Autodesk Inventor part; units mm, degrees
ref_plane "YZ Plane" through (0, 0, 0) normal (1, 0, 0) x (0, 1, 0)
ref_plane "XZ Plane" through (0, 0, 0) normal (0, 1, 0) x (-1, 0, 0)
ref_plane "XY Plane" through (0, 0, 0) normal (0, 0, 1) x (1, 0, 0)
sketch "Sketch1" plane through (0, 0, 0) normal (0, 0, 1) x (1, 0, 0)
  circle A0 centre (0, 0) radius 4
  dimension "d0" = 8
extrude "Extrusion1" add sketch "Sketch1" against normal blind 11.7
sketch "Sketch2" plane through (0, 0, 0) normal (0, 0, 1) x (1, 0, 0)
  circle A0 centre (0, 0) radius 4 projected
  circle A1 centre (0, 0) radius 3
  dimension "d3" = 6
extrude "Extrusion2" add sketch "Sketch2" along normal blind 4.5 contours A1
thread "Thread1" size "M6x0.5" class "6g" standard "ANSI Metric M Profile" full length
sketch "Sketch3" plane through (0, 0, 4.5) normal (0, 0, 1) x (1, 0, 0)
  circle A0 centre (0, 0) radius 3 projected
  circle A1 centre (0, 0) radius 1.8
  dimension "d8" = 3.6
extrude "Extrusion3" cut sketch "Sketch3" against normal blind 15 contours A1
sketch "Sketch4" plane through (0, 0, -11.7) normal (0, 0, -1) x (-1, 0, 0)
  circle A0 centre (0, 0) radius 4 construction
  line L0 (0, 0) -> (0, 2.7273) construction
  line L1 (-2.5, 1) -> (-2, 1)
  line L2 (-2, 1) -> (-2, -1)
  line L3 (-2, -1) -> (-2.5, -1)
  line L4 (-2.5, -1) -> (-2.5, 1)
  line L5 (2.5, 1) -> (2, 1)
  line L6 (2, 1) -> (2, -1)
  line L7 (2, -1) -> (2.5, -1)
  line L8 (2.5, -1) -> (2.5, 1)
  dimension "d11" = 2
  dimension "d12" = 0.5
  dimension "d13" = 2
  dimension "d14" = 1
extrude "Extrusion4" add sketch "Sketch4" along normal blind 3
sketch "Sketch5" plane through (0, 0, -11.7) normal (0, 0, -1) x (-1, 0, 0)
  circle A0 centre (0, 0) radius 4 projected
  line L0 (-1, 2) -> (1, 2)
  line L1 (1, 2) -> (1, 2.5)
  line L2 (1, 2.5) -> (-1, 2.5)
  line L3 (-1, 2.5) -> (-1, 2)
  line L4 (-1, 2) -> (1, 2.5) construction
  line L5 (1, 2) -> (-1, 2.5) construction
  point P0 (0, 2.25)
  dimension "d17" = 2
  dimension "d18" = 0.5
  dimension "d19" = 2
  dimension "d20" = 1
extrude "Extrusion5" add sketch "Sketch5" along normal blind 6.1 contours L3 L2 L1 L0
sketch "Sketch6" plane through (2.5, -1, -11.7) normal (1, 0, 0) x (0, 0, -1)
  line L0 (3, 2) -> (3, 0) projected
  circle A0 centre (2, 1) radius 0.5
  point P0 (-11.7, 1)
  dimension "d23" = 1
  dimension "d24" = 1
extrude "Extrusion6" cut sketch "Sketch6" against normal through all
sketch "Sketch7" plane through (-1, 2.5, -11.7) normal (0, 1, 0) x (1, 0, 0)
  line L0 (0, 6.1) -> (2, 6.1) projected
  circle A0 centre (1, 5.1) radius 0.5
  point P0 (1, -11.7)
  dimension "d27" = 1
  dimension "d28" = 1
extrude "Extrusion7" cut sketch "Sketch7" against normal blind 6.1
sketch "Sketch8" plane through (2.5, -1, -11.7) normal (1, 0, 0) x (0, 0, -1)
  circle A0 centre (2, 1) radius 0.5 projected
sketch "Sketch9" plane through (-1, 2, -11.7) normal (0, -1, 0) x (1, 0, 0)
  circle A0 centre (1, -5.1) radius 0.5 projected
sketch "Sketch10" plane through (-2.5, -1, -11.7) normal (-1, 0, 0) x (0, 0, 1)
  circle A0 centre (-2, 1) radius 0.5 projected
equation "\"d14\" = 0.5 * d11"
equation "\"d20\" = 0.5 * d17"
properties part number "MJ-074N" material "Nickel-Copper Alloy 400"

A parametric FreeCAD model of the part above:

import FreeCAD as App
import Part
import Sketcher

V = App.Vector

doc = App.newDocument("Part")
params = doc.addObject("Spreadsheet::Sheet", "Params")
for row, (alias, value) in enumerate([
    ("sketch1_diameter", "8 mm"),
    ("pad1_length", "11.7 mm"),
    ("sketch2_diameter", "6 mm"),
    ("pad2_length", "4.5 mm"),
    ("sketch3_diameter", "3.6 mm"),
    ("pocket1_length", "15 mm"),
    ("sketch4_height", "2 mm"),
    ("sketch4_width", "0.5 mm"),
    ("pad3_length", "3 mm"),
    ("sketch5_width", "2 mm"),
    ("sketch5_height", "0.5 mm"),
    ("pad4_length", "6.1 mm"),
    ("sketch6_diameter", "1 mm"),
    ("sketch7_diameter", "1 mm"),
    ("pocket3_length", "6.1 mm"),
], start=1):
    params.set(f"A{row}", alias)
    params.set(f"B{row}", "=" + value)
    params.setAlias(f"B{row}", alias)

body = doc.addObject("PartDesign::Body", "Body")

# Sketch on XY plane
sketch1 = body.newObject("Sketcher::SketchObject", "Sketch")
sketch1.AttachmentSupport = (doc.getObject("XY_Plane"), [""])
sketch1.MapMode = "FlatFace"
sketch1.addGeometry(Part.Circle(V(0, 0, 0), V(0, 0, 1), 4), False)
sketch1.addConstraint(Sketcher.Constraint("Coincident", 0, 3, -1, 1))
sketch1.addConstraint(Sketcher.Constraint("Diameter", 0, 8.0))
sketch1.setExpression("Constraints[1]", "Params.sketch1_diameter")
pad1 = body.newObject("PartDesign::Pad", "Pad")
pad1.Profile = sketch1
pad1.setExpression("Length", "Params.pad1_length")
pad1.Reversed = True

# Sketch on XY plane
sketch2 = body.newObject("Sketcher::SketchObject", "Sketch001")
sketch2.AttachmentSupport = (doc.getObject("XY_Plane"), [""])
sketch2.MapMode = "FlatFace"
sketch2.addGeometry(Part.Circle(V(0, 0, 0), V(0, 0, 1), 3), False)
sketch2.addConstraint(Sketcher.Constraint("Coincident", 0, 3, -1, 1))
sketch2.addConstraint(Sketcher.Constraint("Diameter", 0, 6.0))
sketch2.setExpression("Constraints[1]", "Params.sketch2_diameter")
pad2 = body.newObject("PartDesign::Pad", "Pad001")
pad2.Profile = sketch2
pad2.setExpression("Length", "Params.pad2_length")

# Sketch on XY plane
sketch3 = body.newObject("Sketcher::SketchObject", "Sketch002")
sketch3.AttachmentSupport = (doc.getObject("XY_Plane"), [""])
sketch3.MapMode = "FlatFace"
sketch3.AttachmentOffset = App.Placement(V(0, 0, 4.5), App.Rotation())
sketch3.addGeometry(Part.Circle(V(0, 0, 0), V(0, 0, 1), 1.8), False)
sketch3.addConstraint(Sketcher.Constraint("Coincident", 0, 3, -1, 1))
sketch3.addConstraint(Sketcher.Constraint("Diameter", 0, 3.6))
sketch3.setExpression("Constraints[1]", "Params.sketch3_diameter")
pocket1 = body.newObject("PartDesign::Pocket", "Pocket")
pocket1.Profile = sketch3
pocket1.setExpression("Length", "Params.pocket1_length")

# Sketch on XY plane
sketch4 = body.newObject("Sketcher::SketchObject", "Sketch003")
sketch4.AttachmentSupport = (doc.getObject("XY_Plane"), [""])
sketch4.MapMode = "FlatFace"
sketch4.AttachmentOffset = App.Placement(V(0, 0, -11.7), App.Rotation())
sketch4.addGeometry(Part.LineSegment(V(2, 1, 0), V(2.5, 1, 0)), False)
sketch4.addGeometry(Part.LineSegment(V(2.5, 1, 0), V(2.5, -1, 0)), False)
sketch4.addGeometry(Part.LineSegment(V(2.5, -1, 0), V(2, -1, 0)), False)
sketch4.addGeometry(Part.LineSegment(V(2, -1, 0), V(2, 1, 0)), False)
sketch4.addGeometry(Part.LineSegment(V(-2.5, -1, 0), V(-2.5, 1, 0)), False)
sketch4.addGeometry(Part.LineSegment(V(-2.5, 1, 0), V(-2, 1, 0)), False)
sketch4.addGeometry(Part.LineSegment(V(-2, 1, 0), V(-2, -1, 0)), False)
sketch4.addGeometry(Part.LineSegment(V(-2, -1, 0), V(-2.5, -1, 0)), False)
sketch4.addConstraint(Sketcher.Constraint("Coincident", 0, 2, 1, 1))
sketch4.addConstraint(Sketcher.Constraint("Coincident", 1, 2, 2, 1))
sketch4.addConstraint(Sketcher.Constraint("Coincident", 2, 2, 3, 1))
sketch4.addConstraint(Sketcher.Constraint("Coincident", 3, 2, 0, 1))
sketch4.addConstraint(Sketcher.Constraint("Coincident", 4, 2, 5, 1))
sketch4.addConstraint(Sketcher.Constraint("Coincident", 5, 2, 6, 1))
sketch4.addConstraint(Sketcher.Constraint("Coincident", 6, 2, 7, 1))
sketch4.addConstraint(Sketcher.Constraint("Coincident", 7, 2, 4, 1))
sketch4.addConstraint(Sketcher.Constraint("Horizontal", 0))
sketch4.addConstraint(Sketcher.Constraint("Vertical", 1))
sketch4.addConstraint(Sketcher.Constraint("Horizontal", 2))
sketch4.addConstraint(Sketcher.Constraint("Vertical", 3))
sketch4.addConstraint(Sketcher.Constraint("Vertical", 4))
sketch4.addConstraint(Sketcher.Constraint("Horizontal", 5))
sketch4.addConstraint(Sketcher.Constraint("Vertical", 6))
sketch4.addConstraint(Sketcher.Constraint("Horizontal", 7))
sketch4.addConstraint(Sketcher.Constraint("Symmetric", 1, 2, 4, 2, -1, 1))
sketch4.addConstraint(Sketcher.Constraint("Symmetric", 3, 2, 6, 2, -1, 1))
sketch4.addConstraint(Sketcher.Constraint("Horizontal", 3, 2, 4, 2))
sketch4.addConstraint(Sketcher.Constraint("DistanceY", 1, 2, 1, 1, 2.0))
sketch4.addConstraint(Sketcher.Constraint("DistanceX", 0, 1, 0, 2, 0.5))
sketch4.addConstraint(Sketcher.Constraint("DistanceX", -1, 1, 2, 2, 2.0))
sketch4.setExpression("Constraints[19]", "Params.sketch4_height")
sketch4.setExpression("Constraints[20]", "Params.sketch4_width")
pad3 = body.newObject("PartDesign::Pad", "Pad002")
pad3.Profile = sketch4
pad3.setExpression("Length", "Params.pad3_length")
pad3.Reversed = True

# Sketch on XY plane
sketch5 = body.newObject("Sketcher::SketchObject", "Sketch004")
sketch5.AttachmentSupport = (doc.getObject("XY_Plane"), [""])
sketch5.MapMode = "FlatFace"
sketch5.AttachmentOffset = App.Placement(V(0, 0, -11.7), App.Rotation())
sketch5.addGeometry(Part.LineSegment(V(1, 2.5, 0), V(1, 2, 0)), False)
sketch5.addGeometry(Part.LineSegment(V(1, 2, 0), V(-1, 2, 0)), False)
sketch5.addGeometry(Part.LineSegment(V(-1, 2, 0), V(-1, 2.5, 0)), False)
sketch5.addGeometry(Part.LineSegment(V(-1, 2.5, 0), V(1, 2.5, 0)), False)
sketch5.addConstraint(Sketcher.Constraint("Coincident", 0, 2, 1, 1))
sketch5.addConstraint(Sketcher.Constraint("Coincident", 1, 2, 2, 1))
sketch5.addConstraint(Sketcher.Constraint("Coincident", 2, 2, 3, 1))
sketch5.addConstraint(Sketcher.Constraint("Coincident", 3, 2, 0, 1))
sketch5.addConstraint(Sketcher.Constraint("Vertical", 0))
sketch5.addConstraint(Sketcher.Constraint("Horizontal", 1))
sketch5.addConstraint(Sketcher.Constraint("Vertical", 2))
sketch5.addConstraint(Sketcher.Constraint("Horizontal", 3))
sketch5.addConstraint(Sketcher.Constraint("DistanceX", 1, 2, 1, 1, 2.0))
sketch5.addConstraint(Sketcher.Constraint("DistanceY", 0, 2, 0, 1, 0.5))
sketch5.addConstraint(Sketcher.Constraint("DistanceX", -1, 1, 0, 2, 1.0))
sketch5.addConstraint(Sketcher.Constraint("DistanceY", -1, 1, 0, 2, 2.0))
sketch5.setExpression("Constraints[8]", "Params.sketch5_width")
sketch5.setExpression("Constraints[9]", "Params.sketch5_height")
pad4 = body.newObject("PartDesign::Pad", "Pad003")
pad4.Profile = sketch5
pad4.setExpression("Length", "Params.pad4_length")
pad4.Reversed = True

# Sketch on YZ plane
sketch6 = body.newObject("Sketcher::SketchObject", "Sketch005")
sketch6.AttachmentSupport = (doc.getObject("YZ_Plane"), [""])
sketch6.MapMode = "FlatFace"
sketch6.AttachmentOffset = App.Placement(V(0, 0, 2.5), App.Rotation())
sketch6.addGeometry(Part.Circle(V(0, -13.7, 0), V(0, 0, 1), 0.5), False)
sketch6.addConstraint(Sketcher.Constraint("PointOnObject", 0, 3, -2))
sketch6.addConstraint(Sketcher.Constraint("Diameter", 0, 1.0))
sketch6.addConstraint(Sketcher.Constraint("DistanceY", 0, 3, -1, 1, 13.7))
sketch6.setExpression("Constraints[1]", "Params.sketch6_diameter")
pocket2 = body.newObject("PartDesign::Pocket", "Pocket001")
pocket2.Profile = sketch6
pocket2.Type = "ThroughAll"

# Sketch on XZ plane
sketch7 = body.newObject("Sketcher::SketchObject", "Sketch006")
sketch7.AttachmentSupport = (doc.getObject("XZ_Plane"), [""])
sketch7.MapMode = "FlatFace"
sketch7.AttachmentOffset = App.Placement(V(0, 0, -2.5), App.Rotation())
sketch7.addGeometry(Part.Circle(V(0, -16.8, 0), V(0, 0, 1), 0.5), False)
sketch7.addConstraint(Sketcher.Constraint("PointOnObject", 0, 3, -2))
sketch7.addConstraint(Sketcher.Constraint("Diameter", 0, 1.0))
sketch7.addConstraint(Sketcher.Constraint("DistanceY", 0, 3, -1, 1, 16.8))
sketch7.setExpression("Constraints[1]", "Params.sketch7_diameter")
pocket3 = body.newObject("PartDesign::Pocket", "Pocket002")
pocket3.Profile = sketch7
pocket3.setExpression("Length", "Params.pocket3_length")
pocket3.Reversed = True

doc.recompute()
